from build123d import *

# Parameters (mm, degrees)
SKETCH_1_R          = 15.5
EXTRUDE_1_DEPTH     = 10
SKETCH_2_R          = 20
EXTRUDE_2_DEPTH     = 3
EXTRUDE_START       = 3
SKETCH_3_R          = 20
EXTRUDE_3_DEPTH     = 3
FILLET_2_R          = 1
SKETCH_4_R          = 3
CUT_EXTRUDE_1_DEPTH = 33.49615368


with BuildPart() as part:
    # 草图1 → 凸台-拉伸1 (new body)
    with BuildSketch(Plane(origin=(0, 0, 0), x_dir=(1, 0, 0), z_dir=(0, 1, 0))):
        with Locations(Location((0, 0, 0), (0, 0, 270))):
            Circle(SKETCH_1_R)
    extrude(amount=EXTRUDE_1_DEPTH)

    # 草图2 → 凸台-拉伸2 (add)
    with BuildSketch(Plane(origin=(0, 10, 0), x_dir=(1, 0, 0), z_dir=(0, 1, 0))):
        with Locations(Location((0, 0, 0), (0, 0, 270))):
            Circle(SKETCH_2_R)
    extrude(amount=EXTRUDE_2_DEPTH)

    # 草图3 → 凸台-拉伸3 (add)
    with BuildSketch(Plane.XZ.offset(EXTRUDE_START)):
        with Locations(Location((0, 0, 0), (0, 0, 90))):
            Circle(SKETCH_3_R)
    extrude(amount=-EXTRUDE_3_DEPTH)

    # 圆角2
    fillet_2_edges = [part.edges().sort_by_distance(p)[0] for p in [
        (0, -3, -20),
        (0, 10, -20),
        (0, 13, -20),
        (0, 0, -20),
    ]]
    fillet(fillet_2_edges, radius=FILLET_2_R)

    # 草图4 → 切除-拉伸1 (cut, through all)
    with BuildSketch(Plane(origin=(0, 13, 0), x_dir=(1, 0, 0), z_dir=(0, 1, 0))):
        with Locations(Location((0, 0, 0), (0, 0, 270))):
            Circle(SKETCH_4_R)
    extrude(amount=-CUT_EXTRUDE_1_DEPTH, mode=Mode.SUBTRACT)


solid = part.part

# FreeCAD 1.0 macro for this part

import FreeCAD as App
import Part
import Sketcher
from FreeCAD import Vector
Q = App.Units.Quantity


def edges_at(feature, points):
    """Names of the edges that pass closest to the given points."""
    edges = feature.Shape.Edges
    near = lambda p: min(range(len(edges)), key=lambda i: edges[i].distToShape(Part.Vertex(*p))[0])
    return sorted({f"Edge{near(p) + 1}" for p in points})

doc = App.newDocument("Part")
body = doc.addObject("PartDesign::Body", "Body")

# Sketch on XZ plane
sketch1 = doc.addObject("Sketcher::SketchObject", "Sketch")
body.addObject(sketch1)
sketch1.AttachmentSupport = (doc.XZ_Plane, [""])
sketch1.MapMode = "FlatFace"
sketch1.addGeometry(Part.Circle(Vector(0, 0, 0), Vector(0, 0, 1), 16), False)
sketch1.addConstraint([
    Sketcher.Constraint("Coincident", 0, 3, -1, 1),
    Sketcher.Constraint("Diameter", 0, Q("31 mm")),
])
pad1 = doc.addObject("PartDesign::Pad", "Pad")
body.addObject(pad1)
pad1.Profile = sketch1
pad1.Length = 10
pad1.Reversed = True

# Sketch on XZ plane
sketch2 = doc.addObject("Sketcher::SketchObject", "Sketch001")
body.addObject(sketch2)
sketch2.AttachmentSupport = (doc.XZ_Plane, [""])
sketch2.MapMode = "FlatFace"
sketch2.AttachmentOffset = App.Placement(Vector(0, 0, -10), App.Rotation())
sketch2.addGeometry(Part.Circle(Vector(0, 0, 0), Vector(0, 0, 1), 20), False)
sketch2.addConstraint([
    Sketcher.Constraint("Coincident", 0, 3, -1, 1),
    Sketcher.Constraint("Diameter", 0, Q("40 mm")),
])
pad2 = doc.addObject("PartDesign::Pad", "Pad001")
body.addObject(pad2)
pad2.Profile = sketch2
pad2.Length = 3
pad2.Reversed = True

# Sketch on XZ plane
sketch3 = doc.addObject("Sketcher::SketchObject", "Sketch002")
body.addObject(sketch3)
sketch3.AttachmentSupport = (doc.XZ_Plane, [""])
sketch3.MapMode = "FlatFace"
sketch3.AttachmentOffset = App.Placement(Vector(0, 0, 3), App.Rotation())
sketch3.addGeometry(Part.Circle(Vector(0, 0, 0), Vector(0, 0, 1), 20), False)
sketch3.addConstraint([
    Sketcher.Constraint("Coincident", 0, 3, -1, 1),
    Sketcher.Constraint("Diameter", 0, Q("40 mm")),
])
pad3 = doc.addObject("PartDesign::Pad", "Pad002")
body.addObject(pad3)
pad3.Profile = sketch3
pad3.Length = 3
pad3.Reversed = True
doc.recompute()

fillet = doc.addObject("PartDesign::Fillet", "Fillet")
body.addObject(fillet)
fillet.Base = (pad3, edges_at(pad3, [
    (0, -3, -20),
    (0, 10, -20),
    (0, 13, -20),
    (0, 0, -20),
]))
fillet.Radius = 1

# Sketch on XZ plane
sketch4 = doc.addObject("Sketcher::SketchObject", "Sketch003")
body.addObject(sketch4)
sketch4.AttachmentSupport = (doc.XZ_Plane, [""])
sketch4.MapMode = "FlatFace"
sketch4.AttachmentOffset = App.Placement(Vector(0, 0, -13), App.Rotation())
sketch4.addGeometry(Part.Circle(Vector(0, 0, 0), Vector(0, 0, 1), 3), False)
sketch4.addConstraint([
    Sketcher.Constraint("Coincident", 0, 3, -1, 1),
    Sketcher.Constraint("Diameter", 0, Q("6 mm")),
])
pocket1 = doc.addObject("PartDesign::Pocket", "Pocket")
body.addObject(pocket1)
pocket1.Profile = sketch4
pocket1.Type = "ThroughAll"
pocket1.Reversed = True

doc.recompute()
